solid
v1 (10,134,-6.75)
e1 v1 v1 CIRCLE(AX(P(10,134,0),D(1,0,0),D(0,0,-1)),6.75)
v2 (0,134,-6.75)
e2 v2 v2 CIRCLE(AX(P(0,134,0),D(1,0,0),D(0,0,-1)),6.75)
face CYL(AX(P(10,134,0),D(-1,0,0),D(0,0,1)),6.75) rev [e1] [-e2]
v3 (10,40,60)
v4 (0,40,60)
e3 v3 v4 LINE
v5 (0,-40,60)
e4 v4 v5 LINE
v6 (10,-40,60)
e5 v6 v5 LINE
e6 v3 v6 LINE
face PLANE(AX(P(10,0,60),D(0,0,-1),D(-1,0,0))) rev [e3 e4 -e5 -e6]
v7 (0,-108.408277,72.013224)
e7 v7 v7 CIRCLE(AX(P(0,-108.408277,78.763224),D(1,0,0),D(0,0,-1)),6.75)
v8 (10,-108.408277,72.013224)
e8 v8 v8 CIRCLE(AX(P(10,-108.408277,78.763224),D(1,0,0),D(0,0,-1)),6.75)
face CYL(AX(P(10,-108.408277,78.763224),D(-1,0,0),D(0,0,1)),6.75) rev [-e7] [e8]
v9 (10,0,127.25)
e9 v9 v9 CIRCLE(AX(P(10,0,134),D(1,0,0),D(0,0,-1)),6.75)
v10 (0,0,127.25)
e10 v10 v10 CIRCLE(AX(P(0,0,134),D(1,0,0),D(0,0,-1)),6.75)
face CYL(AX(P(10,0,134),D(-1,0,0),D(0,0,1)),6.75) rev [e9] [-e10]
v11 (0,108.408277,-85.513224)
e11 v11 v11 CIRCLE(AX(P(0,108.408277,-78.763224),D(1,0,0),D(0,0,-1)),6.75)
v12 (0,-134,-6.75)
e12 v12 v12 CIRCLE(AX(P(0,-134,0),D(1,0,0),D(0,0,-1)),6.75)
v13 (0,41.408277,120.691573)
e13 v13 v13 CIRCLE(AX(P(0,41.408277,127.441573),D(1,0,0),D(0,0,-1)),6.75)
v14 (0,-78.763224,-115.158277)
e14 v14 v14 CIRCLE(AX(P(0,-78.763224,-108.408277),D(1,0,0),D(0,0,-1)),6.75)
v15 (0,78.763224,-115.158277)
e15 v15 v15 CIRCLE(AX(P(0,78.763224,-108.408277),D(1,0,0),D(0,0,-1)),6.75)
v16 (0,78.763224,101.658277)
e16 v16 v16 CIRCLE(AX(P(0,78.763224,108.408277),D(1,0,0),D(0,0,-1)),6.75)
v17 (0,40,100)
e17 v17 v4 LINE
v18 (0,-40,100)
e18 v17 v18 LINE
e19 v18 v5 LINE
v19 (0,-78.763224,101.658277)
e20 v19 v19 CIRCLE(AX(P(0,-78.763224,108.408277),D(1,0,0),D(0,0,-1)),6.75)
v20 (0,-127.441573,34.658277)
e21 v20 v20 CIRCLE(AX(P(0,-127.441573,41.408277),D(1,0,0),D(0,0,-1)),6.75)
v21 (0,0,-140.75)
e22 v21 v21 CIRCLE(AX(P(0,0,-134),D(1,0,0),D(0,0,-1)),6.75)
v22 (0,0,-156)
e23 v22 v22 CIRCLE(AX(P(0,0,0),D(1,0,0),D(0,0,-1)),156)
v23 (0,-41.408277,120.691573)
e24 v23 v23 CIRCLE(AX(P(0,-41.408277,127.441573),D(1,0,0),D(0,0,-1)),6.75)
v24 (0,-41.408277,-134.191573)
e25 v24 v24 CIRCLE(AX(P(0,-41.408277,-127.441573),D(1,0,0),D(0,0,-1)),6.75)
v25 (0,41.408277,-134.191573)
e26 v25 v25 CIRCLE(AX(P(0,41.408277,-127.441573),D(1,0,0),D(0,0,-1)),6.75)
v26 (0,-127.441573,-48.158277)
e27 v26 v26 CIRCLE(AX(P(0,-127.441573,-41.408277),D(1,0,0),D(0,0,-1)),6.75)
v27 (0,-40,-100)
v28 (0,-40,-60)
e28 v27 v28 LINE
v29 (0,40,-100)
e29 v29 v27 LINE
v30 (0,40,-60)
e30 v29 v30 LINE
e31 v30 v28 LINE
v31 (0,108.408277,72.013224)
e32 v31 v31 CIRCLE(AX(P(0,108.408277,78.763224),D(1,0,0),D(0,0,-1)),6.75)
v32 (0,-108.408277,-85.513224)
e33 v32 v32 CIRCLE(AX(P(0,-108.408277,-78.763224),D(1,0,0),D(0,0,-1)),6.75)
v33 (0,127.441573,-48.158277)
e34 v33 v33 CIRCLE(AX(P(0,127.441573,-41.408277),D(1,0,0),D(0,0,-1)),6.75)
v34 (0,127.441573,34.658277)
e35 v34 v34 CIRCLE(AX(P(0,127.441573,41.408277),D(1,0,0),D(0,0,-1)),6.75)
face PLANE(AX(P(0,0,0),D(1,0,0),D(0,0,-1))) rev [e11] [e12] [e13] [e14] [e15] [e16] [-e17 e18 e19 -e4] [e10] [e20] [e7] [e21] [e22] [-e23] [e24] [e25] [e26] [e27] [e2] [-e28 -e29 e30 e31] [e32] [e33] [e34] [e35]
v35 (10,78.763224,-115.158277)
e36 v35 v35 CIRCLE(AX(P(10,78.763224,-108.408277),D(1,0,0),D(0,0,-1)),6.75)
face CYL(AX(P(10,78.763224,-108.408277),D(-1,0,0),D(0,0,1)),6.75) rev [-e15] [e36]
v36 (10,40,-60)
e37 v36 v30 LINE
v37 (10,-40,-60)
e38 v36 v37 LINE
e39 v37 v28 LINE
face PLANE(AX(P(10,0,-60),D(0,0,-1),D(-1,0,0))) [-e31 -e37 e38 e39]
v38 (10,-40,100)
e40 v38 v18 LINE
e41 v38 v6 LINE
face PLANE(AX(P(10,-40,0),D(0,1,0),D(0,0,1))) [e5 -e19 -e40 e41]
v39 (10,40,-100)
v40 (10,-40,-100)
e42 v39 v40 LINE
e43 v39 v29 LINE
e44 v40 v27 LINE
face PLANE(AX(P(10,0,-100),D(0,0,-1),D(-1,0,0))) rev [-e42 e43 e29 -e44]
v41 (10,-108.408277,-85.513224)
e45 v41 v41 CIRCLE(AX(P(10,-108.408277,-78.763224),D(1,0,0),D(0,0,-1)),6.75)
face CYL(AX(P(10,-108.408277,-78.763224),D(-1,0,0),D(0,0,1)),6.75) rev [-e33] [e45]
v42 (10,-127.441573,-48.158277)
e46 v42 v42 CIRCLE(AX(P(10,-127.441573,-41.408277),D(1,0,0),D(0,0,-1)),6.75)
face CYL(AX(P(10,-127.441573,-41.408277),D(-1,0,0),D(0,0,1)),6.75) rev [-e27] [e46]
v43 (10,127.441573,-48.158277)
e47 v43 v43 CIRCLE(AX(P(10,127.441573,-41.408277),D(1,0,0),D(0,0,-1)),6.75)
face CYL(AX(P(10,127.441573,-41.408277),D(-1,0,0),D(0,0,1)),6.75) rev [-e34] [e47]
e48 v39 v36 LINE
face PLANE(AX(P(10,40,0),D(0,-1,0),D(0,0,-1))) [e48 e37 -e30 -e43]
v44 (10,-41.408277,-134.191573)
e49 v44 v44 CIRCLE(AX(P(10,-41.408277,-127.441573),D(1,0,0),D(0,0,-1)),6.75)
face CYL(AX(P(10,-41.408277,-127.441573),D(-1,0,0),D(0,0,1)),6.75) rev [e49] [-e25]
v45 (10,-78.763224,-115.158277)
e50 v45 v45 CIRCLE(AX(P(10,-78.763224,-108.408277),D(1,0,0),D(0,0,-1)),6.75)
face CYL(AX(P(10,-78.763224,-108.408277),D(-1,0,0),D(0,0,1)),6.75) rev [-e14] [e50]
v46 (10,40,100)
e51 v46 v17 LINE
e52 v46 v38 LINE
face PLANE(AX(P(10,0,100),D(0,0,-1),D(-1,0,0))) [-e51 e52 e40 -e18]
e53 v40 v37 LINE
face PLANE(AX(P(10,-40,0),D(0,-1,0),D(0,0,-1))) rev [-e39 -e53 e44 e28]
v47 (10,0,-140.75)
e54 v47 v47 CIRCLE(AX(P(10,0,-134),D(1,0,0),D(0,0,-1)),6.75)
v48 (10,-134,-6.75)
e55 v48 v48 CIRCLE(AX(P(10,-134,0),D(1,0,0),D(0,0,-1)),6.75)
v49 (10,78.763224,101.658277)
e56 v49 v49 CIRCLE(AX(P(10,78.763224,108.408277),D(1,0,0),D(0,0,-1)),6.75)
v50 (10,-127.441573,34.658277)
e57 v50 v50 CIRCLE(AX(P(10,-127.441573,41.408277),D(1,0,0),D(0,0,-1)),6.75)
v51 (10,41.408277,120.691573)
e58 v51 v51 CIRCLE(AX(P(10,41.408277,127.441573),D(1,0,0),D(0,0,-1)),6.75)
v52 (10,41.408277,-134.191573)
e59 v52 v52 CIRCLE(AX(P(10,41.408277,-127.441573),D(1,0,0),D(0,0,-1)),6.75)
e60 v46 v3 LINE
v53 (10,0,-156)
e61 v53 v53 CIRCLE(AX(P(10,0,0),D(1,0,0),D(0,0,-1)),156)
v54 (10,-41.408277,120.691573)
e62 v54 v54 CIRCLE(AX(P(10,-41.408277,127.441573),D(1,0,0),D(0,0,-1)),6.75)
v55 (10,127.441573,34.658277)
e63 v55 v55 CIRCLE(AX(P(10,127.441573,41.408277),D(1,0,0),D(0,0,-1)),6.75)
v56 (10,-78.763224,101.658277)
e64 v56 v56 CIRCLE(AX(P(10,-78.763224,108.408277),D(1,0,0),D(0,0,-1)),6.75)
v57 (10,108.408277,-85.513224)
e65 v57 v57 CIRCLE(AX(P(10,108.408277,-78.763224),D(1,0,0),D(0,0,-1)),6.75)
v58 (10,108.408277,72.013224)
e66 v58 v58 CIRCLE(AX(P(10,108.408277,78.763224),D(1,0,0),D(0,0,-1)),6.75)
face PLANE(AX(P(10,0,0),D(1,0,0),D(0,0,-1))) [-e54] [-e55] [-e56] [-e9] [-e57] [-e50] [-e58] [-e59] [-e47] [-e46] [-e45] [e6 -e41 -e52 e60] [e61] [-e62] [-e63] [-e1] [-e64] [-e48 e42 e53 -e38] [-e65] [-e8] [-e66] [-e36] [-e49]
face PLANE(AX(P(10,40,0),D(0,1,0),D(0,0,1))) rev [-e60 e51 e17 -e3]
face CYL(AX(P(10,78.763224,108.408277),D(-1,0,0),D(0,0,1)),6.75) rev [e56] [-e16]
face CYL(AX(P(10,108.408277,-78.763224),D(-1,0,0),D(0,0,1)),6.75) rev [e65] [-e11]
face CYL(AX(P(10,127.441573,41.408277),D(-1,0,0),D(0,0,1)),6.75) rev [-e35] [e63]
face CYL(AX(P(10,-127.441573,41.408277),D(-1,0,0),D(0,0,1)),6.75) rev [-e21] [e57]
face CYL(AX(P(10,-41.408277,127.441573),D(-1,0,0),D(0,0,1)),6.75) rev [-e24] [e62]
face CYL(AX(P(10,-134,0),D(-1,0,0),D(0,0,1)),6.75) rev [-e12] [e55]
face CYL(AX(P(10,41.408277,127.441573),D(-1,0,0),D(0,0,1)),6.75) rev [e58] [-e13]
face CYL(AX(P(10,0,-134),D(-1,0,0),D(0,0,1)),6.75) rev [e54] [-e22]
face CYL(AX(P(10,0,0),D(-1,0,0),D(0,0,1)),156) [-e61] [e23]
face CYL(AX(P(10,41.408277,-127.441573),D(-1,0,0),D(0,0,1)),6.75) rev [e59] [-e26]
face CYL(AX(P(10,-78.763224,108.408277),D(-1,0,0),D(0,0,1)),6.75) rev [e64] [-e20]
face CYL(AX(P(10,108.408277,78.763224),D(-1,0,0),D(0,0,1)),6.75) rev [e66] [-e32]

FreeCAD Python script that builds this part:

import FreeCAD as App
import Part
import Sketcher

V = App.Vector
Q = App.Units.Quantity

doc = App.newDocument("Part")
params = doc.addObject("Spreadsheet::Sheet", "Params")
for row, (alias, value) in enumerate([
    ("sketch1_diameter", "312 mm"),
    ("sketch1_diameter2", "13.5 mm"),
    ("sketch1_width", "80 mm"),
    ("sketch1_height", "40 mm"),
    ("pad1_length", "10 mm"),
], start=1):
    params.set(f"A{row}", alias)
    params.set(f"B{row}", "=" + value)
    params.setAlias(f"B{row}", alias)

body = doc.addObject("PartDesign::Body", "Body")

sketch1 = doc.addObject("Sketcher::SketchObject", "Sketch")
body.addObject(sketch1)
sketch1.AttachmentSupport = (doc.YZ_Plane, [""])
sketch1.MapMode = "FlatFace"
sketch1.addGeometry([
    Part.Circle(V(0, 0, 0), V(0, 0, 1), 156),
    Part.Circle(V(-108, 79, 0), V(0, 0, 1), 7),
    Part.Circle(V(-79, 108, 0), V(0, 0, 1), 7),
    Part.Circle(V(-127, 41, 0), V(0, 0, 1), 7),
    Part.Circle(V(-41, 127, 0), V(0, 0, 1), 7),
    Part.Circle(V(-134, 0, 0), V(0, 0, 1), 7),
    Part.Circle(V(-127, -41, 0), V(0, 0, 1), 7),
    Part.Circle(V(-108, -79, 0), V(0, 0, 1), 7),
    Part.Circle(V(-79, -108, 0), V(0, 0, 1), 7),
    Part.Circle(V(-41, -127, 0), V(0, 0, 1), 7),
    Part.Circle(V(0, 134, 0), V(0, 0, 1), 7),
    Part.LineSegment(V(-40, 60, 0), V(-40, 100, 0)),
    Part.LineSegment(V(-40, 100, 0), V(40, 100, 0)),
    Part.LineSegment(V(40, 100, 0), V(40, 60, 0)),
    Part.LineSegment(V(40, 60, 0), V(-40, 60, 0)),
    Part.Circle(V(41, 127, 0), V(0, 0, 1), 7),
    Part.Circle(V(79, 108, 0), V(0, 0, 1), 7),
    Part.Circle(V(108, 79, 0), V(0, 0, 1), 7),
    Part.Circle(V(127, 41, 0), V(0, 0, 1), 7),
    Part.LineSegment(V(-40, -100, 0), V(-40, -60, 0)),
    Part.LineSegment(V(-40, -60, 0), V(40, -60, 0)),
    Part.LineSegment(V(40, -60, 0), V(40, -100, 0)),
    Part.LineSegment(V(40, -100, 0), V(-40, -100, 0)),
    Part.Circle(V(0, -134, 0), V(0, 0, 1), 7),
    Part.Circle(V(41, -127, 0), V(0, 0, 1), 7),
    Part.Circle(V(134, 0, 0), V(0, 0, 1), 7),
    Part.Circle(V(127, -41, 0), V(0, 0, 1), 7),
    Part.Circle(V(79, -108, 0), V(0, 0, 1), 7),
    Part.Circle(V(108, -79, 0), V(0, 0, 1), 7),
], False)
sketch1.addConstraint([
    Sketcher.Constraint("Coincident", 11, 2, 12, 1),
    Sketcher.Constraint("Coincident", 12, 2, 13, 1),
    Sketcher.Constraint("Coincident", 13, 2, 14, 1),
    Sketcher.Constraint("Coincident", 14, 2, 11, 1),
    Sketcher.Constraint("Coincident", 19, 2, 20, 1),
    Sketcher.Constraint("Coincident", 20, 2, 21, 1),
    Sketcher.Constraint("Coincident", 21, 2, 22, 1),
    Sketcher.Constraint("Coincident", 22, 2, 19, 1),
    Sketcher.Constraint("Vertical", 11),
    Sketcher.Constraint("Horizontal", 12),
    Sketcher.Constraint("Vertical", 13),
    Sketcher.Constraint("Horizontal", 14),
    Sketcher.Constraint("Vertical", 19),
    Sketcher.Constraint("Horizontal", 20),
    Sketcher.Constraint("Vertical", 21),
    Sketcher.Constraint("Horizontal", 22),
    Sketcher.Constraint("Coincident", 0, 3, -1, 1),
    Sketcher.Constraint("Equal", 1, 2),
    Sketcher.Constraint("Equal", 2, 3),
    Sketcher.Constraint("Equal", 3, 4),
    Sketcher.Constraint("Equal", 4, 5),
    Sketcher.Constraint("Equal", 5, 6),
    Sketcher.Constraint("Equal", 6, 7),
    Sketcher.Constraint("Equal", 7, 8),
    Sketcher.Constraint("Equal", 8, 9),
    Sketcher.Constraint("Equal", 9, 10),
    Sketcher.Constraint("Equal", 10, 15),
    Sketcher.Constraint("Equal", 15, 16),
    Sketcher.Constraint("Equal", 16, 17),
    Sketcher.Constraint("Equal", 17, 18),
    Sketcher.Constraint("Equal", 18, 23),
    Sketcher.Constraint("Equal", 23, 24),
    Sketcher.Constraint("Equal", 24, 25),
    Sketcher.Constraint("Equal", 25, 26),
    Sketcher.Constraint("Equal", 26, 27),
    Sketcher.Constraint("Equal", 27, 28),
    Sketcher.Constraint("Symmetric", 9, 3, 15, 3, -1, 1),
    Sketcher.Constraint("Symmetric", 8, 3, 16, 3, -1, 1),
    Sketcher.Constraint("Symmetric", 7, 3, 17, 3, -1, 1),
    Sketcher.Constraint("Symmetric", 6, 3, 18, 3, -1, 1),
    Sketcher.Constraint("Symmetric", 10, 3, 23, 3, -1, 1),
    Sketcher.Constraint("Symmetric", 4, 3, 24, 3, -1, 1),
    Sketcher.Constraint("Symmetric", 5, 3, 25, 3, -1, 1),
    Sketcher.Constraint("Symmetric", 3, 3, 26, 3, -1, 1),
    Sketcher.Constraint("Symmetric", 2, 3, 27, 3, -1, 1),
    Sketcher.Constraint("Symmetric", 1, 3, 28, 3, -1, 1),
    Sketcher.Constraint("Symmetric", 13, 2, 19, 2, -1, 1),
    Sketcher.Constraint("Symmetric", 11, 2, 21, 2, -1, 1),
    Sketcher.Constraint("Symmetric", 4, 3, 15, 3, -2),
    Sketcher.Constraint("Symmetric", 2, 3, 16, 3, -2),
    Sketcher.Constraint("Symmetric", 1, 3, 17, 3, -2),
    Sketcher.Constraint("Symmetric", 3, 3, 18, 3, -2),
    Sketcher.Constraint("PointOnObject", 5, 3, -1),
    Sketcher.Constraint("PointOnObject", 10, 3, -2),
    Sketcher.Constraint("Vertical", 14, 2, 19, 2),
    Sketcher.Constraint("Diameter", 0, Q("312 mm")),
    Sketcher.Constraint("Diameter", 1, Q("13.5 mm")),
    Sketcher.Constraint("DistanceX", 12, 1, 12, 2, Q("80 mm")),
    Sketcher.Constraint("DistanceY", 11, 1, 11, 2, Q("40 mm")),
    Sketcher.Constraint("DistanceX", 5, 3, -1, 1, Q("134 mm")),
    Sketcher.Constraint("DistanceY", -1, 1, 10, 3, Q("134 mm")),
    Sketcher.Constraint("DistanceY", -1, 1, 11, 2, Q("100 mm")),
    Sketcher.Constraint("DistanceY", 3, 3, 2, 3, Q("67 mm")),
    Sketcher.Constraint("DistanceX", 1, 3, 4, 3, Q("67 mm")),
    Sketcher.Constraint("DistanceY", 6, 3, 1, 3, Q("120.171501 mm")),
    Sketcher.Constraint("DistanceX", 2, 3, 15, 3, Q("120.171501 mm")),
    Sketcher.Constraint("DistanceX", 3, 3, 2, 3, Q("48.678349 mm")),
    Sketcher.Constraint("DistanceY", 1, 3, 4, 3, Q("48.678349 mm")),
    Sketcher.Constraint("DistanceX", 1, 3, -1, 1, Q("108.408277 mm")),
    Sketcher.Constraint("DistanceY", -1, 1, 1, 3, Q("78.763224 mm")),
])
sketch1.setExpression("Constraints[55]", "Params.sketch1_diameter")
sketch1.setExpression("Constraints[56]", "Params.sketch1_diameter2")
sketch1.setExpression("Constraints[57]", "Params.sketch1_width")
sketch1.setExpression("Constraints[58]", "Params.sketch1_height")
pad1 = doc.addObject("PartDesign::Pad", "Pad")
body.addObject(pad1)
pad1.Profile = sketch1
pad1.setExpression("Length", "Params.pad1_length")

doc.recompute()
